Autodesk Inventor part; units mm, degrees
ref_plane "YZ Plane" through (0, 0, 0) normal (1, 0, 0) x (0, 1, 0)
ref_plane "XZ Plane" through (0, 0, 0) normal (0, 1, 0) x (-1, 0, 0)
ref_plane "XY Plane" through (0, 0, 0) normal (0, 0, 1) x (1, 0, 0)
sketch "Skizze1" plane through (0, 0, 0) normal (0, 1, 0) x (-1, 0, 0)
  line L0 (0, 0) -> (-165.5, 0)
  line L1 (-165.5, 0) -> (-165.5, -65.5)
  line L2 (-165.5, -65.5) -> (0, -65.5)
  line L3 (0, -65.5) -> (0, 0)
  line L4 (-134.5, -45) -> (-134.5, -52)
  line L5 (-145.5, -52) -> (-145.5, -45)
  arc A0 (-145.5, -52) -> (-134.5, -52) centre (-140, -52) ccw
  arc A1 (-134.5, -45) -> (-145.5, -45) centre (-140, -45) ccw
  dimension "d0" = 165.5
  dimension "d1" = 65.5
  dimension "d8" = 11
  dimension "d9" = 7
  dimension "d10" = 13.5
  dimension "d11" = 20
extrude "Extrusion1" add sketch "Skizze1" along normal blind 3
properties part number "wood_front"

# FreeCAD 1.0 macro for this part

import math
import FreeCAD as App
import Part
import Sketcher

doc = App.newDocument("Part")
body = doc.addObject("PartDesign::Body", "Body")

sketch1 = doc.addObject("Sketcher::SketchObject", "Sketch")
body.addObject(sketch1)
sketch1.AttachmentSupport = (doc.XZ_Plane, [""])
sketch1.MapMode = "FlatFace"
sketch1.addGeometry(Part.LineSegment(App.Vector(0, -66, 0), App.Vector(0, 0, 0)), False)
sketch1.addGeometry(Part.LineSegment(App.Vector(0, 0, 0), App.Vector(166, 0, 0)), False)
sketch1.addGeometry(Part.LineSegment(App.Vector(166, 0, 0), App.Vector(166, -66, 0)), False)
sketch1.addGeometry(Part.LineSegment(App.Vector(166, -66, 0), App.Vector(0, -66, 0)), False)
sketch1.addGeometry(Part.ArcOfCircle(Part.Circle(App.Vector(140, -45, 0), App.Vector(0, 0, 1), 6), math.radians(0), math.radians(180)), False)
sketch1.addGeometry(Part.LineSegment(App.Vector(134, -45, 0), App.Vector(134, -52, 0)), False)
sketch1.addGeometry(Part.ArcOfCircle(Part.Circle(App.Vector(140, -52, 0), App.Vector(0, 0, 1), 6), math.radians(180), math.radians(360)), False)
sketch1.addGeometry(Part.LineSegment(App.Vector(146, -52, 0), App.Vector(146, -45, 0)), False)
sketch1.addConstraint(Sketcher.Constraint("Coincident", 0, 2, 1, 1))
sketch1.addConstraint(Sketcher.Constraint("Coincident", 1, 2, 2, 1))
sketch1.addConstraint(Sketcher.Constraint("Coincident", 2, 2, 3, 1))
sketch1.addConstraint(Sketcher.Constraint("Coincident", 3, 2, 0, 1))
sketch1.addConstraint(Sketcher.Constraint("Tangent", 4, 2, 5, 1))
sketch1.addConstraint(Sketcher.Constraint("Tangent", 5, 2, 6, 1))
sketch1.addConstraint(Sketcher.Constraint("Tangent", 6, 2, 7, 1))
sketch1.addConstraint(Sketcher.Constraint("Tangent", 7, 2, 4, 1))
sketch1.addConstraint(Sketcher.Constraint("Vertical", 0))
sketch1.addConstraint(Sketcher.Constraint("Horizontal", 1))
sketch1.addConstraint(Sketcher.Constraint("Vertical", 2))
sketch1.addConstraint(Sketcher.Constraint("Horizontal", 3))
sketch1.addConstraint(Sketcher.Constraint("Vertical", 5))
sketch1.addConstraint(Sketcher.Constraint("Vertical", 7))
sketch1.addConstraint(Sketcher.Constraint("Coincident", 0, 2, -1, 1))
sketch1.addConstraint(Sketcher.Constraint("Radius", 4, 5.5))
sketch1.addConstraint(Sketcher.Constraint("DistanceY", 5, 2, 5, 1, 7.0))
sketch1.addConstraint(Sketcher.Constraint("DistanceX", 1, 1, 1, 2, 165.5))
sketch1.addConstraint(Sketcher.Constraint("DistanceY", 0, 1, 0, 2, 65.5))
sketch1.addConstraint(Sketcher.Constraint("DistanceX", 6, 2, 2, 2, 20.0))
sketch1.addConstraint(Sketcher.Constraint("DistanceY", 2, 2, 6, 3, 13.5))
pad1 = doc.addObject("PartDesign::Pad", "Pad")
body.addObject(pad1)
pad1.Profile = sketch1
pad1.Length = 3
pad1.Reversed = True

doc.recompute()
